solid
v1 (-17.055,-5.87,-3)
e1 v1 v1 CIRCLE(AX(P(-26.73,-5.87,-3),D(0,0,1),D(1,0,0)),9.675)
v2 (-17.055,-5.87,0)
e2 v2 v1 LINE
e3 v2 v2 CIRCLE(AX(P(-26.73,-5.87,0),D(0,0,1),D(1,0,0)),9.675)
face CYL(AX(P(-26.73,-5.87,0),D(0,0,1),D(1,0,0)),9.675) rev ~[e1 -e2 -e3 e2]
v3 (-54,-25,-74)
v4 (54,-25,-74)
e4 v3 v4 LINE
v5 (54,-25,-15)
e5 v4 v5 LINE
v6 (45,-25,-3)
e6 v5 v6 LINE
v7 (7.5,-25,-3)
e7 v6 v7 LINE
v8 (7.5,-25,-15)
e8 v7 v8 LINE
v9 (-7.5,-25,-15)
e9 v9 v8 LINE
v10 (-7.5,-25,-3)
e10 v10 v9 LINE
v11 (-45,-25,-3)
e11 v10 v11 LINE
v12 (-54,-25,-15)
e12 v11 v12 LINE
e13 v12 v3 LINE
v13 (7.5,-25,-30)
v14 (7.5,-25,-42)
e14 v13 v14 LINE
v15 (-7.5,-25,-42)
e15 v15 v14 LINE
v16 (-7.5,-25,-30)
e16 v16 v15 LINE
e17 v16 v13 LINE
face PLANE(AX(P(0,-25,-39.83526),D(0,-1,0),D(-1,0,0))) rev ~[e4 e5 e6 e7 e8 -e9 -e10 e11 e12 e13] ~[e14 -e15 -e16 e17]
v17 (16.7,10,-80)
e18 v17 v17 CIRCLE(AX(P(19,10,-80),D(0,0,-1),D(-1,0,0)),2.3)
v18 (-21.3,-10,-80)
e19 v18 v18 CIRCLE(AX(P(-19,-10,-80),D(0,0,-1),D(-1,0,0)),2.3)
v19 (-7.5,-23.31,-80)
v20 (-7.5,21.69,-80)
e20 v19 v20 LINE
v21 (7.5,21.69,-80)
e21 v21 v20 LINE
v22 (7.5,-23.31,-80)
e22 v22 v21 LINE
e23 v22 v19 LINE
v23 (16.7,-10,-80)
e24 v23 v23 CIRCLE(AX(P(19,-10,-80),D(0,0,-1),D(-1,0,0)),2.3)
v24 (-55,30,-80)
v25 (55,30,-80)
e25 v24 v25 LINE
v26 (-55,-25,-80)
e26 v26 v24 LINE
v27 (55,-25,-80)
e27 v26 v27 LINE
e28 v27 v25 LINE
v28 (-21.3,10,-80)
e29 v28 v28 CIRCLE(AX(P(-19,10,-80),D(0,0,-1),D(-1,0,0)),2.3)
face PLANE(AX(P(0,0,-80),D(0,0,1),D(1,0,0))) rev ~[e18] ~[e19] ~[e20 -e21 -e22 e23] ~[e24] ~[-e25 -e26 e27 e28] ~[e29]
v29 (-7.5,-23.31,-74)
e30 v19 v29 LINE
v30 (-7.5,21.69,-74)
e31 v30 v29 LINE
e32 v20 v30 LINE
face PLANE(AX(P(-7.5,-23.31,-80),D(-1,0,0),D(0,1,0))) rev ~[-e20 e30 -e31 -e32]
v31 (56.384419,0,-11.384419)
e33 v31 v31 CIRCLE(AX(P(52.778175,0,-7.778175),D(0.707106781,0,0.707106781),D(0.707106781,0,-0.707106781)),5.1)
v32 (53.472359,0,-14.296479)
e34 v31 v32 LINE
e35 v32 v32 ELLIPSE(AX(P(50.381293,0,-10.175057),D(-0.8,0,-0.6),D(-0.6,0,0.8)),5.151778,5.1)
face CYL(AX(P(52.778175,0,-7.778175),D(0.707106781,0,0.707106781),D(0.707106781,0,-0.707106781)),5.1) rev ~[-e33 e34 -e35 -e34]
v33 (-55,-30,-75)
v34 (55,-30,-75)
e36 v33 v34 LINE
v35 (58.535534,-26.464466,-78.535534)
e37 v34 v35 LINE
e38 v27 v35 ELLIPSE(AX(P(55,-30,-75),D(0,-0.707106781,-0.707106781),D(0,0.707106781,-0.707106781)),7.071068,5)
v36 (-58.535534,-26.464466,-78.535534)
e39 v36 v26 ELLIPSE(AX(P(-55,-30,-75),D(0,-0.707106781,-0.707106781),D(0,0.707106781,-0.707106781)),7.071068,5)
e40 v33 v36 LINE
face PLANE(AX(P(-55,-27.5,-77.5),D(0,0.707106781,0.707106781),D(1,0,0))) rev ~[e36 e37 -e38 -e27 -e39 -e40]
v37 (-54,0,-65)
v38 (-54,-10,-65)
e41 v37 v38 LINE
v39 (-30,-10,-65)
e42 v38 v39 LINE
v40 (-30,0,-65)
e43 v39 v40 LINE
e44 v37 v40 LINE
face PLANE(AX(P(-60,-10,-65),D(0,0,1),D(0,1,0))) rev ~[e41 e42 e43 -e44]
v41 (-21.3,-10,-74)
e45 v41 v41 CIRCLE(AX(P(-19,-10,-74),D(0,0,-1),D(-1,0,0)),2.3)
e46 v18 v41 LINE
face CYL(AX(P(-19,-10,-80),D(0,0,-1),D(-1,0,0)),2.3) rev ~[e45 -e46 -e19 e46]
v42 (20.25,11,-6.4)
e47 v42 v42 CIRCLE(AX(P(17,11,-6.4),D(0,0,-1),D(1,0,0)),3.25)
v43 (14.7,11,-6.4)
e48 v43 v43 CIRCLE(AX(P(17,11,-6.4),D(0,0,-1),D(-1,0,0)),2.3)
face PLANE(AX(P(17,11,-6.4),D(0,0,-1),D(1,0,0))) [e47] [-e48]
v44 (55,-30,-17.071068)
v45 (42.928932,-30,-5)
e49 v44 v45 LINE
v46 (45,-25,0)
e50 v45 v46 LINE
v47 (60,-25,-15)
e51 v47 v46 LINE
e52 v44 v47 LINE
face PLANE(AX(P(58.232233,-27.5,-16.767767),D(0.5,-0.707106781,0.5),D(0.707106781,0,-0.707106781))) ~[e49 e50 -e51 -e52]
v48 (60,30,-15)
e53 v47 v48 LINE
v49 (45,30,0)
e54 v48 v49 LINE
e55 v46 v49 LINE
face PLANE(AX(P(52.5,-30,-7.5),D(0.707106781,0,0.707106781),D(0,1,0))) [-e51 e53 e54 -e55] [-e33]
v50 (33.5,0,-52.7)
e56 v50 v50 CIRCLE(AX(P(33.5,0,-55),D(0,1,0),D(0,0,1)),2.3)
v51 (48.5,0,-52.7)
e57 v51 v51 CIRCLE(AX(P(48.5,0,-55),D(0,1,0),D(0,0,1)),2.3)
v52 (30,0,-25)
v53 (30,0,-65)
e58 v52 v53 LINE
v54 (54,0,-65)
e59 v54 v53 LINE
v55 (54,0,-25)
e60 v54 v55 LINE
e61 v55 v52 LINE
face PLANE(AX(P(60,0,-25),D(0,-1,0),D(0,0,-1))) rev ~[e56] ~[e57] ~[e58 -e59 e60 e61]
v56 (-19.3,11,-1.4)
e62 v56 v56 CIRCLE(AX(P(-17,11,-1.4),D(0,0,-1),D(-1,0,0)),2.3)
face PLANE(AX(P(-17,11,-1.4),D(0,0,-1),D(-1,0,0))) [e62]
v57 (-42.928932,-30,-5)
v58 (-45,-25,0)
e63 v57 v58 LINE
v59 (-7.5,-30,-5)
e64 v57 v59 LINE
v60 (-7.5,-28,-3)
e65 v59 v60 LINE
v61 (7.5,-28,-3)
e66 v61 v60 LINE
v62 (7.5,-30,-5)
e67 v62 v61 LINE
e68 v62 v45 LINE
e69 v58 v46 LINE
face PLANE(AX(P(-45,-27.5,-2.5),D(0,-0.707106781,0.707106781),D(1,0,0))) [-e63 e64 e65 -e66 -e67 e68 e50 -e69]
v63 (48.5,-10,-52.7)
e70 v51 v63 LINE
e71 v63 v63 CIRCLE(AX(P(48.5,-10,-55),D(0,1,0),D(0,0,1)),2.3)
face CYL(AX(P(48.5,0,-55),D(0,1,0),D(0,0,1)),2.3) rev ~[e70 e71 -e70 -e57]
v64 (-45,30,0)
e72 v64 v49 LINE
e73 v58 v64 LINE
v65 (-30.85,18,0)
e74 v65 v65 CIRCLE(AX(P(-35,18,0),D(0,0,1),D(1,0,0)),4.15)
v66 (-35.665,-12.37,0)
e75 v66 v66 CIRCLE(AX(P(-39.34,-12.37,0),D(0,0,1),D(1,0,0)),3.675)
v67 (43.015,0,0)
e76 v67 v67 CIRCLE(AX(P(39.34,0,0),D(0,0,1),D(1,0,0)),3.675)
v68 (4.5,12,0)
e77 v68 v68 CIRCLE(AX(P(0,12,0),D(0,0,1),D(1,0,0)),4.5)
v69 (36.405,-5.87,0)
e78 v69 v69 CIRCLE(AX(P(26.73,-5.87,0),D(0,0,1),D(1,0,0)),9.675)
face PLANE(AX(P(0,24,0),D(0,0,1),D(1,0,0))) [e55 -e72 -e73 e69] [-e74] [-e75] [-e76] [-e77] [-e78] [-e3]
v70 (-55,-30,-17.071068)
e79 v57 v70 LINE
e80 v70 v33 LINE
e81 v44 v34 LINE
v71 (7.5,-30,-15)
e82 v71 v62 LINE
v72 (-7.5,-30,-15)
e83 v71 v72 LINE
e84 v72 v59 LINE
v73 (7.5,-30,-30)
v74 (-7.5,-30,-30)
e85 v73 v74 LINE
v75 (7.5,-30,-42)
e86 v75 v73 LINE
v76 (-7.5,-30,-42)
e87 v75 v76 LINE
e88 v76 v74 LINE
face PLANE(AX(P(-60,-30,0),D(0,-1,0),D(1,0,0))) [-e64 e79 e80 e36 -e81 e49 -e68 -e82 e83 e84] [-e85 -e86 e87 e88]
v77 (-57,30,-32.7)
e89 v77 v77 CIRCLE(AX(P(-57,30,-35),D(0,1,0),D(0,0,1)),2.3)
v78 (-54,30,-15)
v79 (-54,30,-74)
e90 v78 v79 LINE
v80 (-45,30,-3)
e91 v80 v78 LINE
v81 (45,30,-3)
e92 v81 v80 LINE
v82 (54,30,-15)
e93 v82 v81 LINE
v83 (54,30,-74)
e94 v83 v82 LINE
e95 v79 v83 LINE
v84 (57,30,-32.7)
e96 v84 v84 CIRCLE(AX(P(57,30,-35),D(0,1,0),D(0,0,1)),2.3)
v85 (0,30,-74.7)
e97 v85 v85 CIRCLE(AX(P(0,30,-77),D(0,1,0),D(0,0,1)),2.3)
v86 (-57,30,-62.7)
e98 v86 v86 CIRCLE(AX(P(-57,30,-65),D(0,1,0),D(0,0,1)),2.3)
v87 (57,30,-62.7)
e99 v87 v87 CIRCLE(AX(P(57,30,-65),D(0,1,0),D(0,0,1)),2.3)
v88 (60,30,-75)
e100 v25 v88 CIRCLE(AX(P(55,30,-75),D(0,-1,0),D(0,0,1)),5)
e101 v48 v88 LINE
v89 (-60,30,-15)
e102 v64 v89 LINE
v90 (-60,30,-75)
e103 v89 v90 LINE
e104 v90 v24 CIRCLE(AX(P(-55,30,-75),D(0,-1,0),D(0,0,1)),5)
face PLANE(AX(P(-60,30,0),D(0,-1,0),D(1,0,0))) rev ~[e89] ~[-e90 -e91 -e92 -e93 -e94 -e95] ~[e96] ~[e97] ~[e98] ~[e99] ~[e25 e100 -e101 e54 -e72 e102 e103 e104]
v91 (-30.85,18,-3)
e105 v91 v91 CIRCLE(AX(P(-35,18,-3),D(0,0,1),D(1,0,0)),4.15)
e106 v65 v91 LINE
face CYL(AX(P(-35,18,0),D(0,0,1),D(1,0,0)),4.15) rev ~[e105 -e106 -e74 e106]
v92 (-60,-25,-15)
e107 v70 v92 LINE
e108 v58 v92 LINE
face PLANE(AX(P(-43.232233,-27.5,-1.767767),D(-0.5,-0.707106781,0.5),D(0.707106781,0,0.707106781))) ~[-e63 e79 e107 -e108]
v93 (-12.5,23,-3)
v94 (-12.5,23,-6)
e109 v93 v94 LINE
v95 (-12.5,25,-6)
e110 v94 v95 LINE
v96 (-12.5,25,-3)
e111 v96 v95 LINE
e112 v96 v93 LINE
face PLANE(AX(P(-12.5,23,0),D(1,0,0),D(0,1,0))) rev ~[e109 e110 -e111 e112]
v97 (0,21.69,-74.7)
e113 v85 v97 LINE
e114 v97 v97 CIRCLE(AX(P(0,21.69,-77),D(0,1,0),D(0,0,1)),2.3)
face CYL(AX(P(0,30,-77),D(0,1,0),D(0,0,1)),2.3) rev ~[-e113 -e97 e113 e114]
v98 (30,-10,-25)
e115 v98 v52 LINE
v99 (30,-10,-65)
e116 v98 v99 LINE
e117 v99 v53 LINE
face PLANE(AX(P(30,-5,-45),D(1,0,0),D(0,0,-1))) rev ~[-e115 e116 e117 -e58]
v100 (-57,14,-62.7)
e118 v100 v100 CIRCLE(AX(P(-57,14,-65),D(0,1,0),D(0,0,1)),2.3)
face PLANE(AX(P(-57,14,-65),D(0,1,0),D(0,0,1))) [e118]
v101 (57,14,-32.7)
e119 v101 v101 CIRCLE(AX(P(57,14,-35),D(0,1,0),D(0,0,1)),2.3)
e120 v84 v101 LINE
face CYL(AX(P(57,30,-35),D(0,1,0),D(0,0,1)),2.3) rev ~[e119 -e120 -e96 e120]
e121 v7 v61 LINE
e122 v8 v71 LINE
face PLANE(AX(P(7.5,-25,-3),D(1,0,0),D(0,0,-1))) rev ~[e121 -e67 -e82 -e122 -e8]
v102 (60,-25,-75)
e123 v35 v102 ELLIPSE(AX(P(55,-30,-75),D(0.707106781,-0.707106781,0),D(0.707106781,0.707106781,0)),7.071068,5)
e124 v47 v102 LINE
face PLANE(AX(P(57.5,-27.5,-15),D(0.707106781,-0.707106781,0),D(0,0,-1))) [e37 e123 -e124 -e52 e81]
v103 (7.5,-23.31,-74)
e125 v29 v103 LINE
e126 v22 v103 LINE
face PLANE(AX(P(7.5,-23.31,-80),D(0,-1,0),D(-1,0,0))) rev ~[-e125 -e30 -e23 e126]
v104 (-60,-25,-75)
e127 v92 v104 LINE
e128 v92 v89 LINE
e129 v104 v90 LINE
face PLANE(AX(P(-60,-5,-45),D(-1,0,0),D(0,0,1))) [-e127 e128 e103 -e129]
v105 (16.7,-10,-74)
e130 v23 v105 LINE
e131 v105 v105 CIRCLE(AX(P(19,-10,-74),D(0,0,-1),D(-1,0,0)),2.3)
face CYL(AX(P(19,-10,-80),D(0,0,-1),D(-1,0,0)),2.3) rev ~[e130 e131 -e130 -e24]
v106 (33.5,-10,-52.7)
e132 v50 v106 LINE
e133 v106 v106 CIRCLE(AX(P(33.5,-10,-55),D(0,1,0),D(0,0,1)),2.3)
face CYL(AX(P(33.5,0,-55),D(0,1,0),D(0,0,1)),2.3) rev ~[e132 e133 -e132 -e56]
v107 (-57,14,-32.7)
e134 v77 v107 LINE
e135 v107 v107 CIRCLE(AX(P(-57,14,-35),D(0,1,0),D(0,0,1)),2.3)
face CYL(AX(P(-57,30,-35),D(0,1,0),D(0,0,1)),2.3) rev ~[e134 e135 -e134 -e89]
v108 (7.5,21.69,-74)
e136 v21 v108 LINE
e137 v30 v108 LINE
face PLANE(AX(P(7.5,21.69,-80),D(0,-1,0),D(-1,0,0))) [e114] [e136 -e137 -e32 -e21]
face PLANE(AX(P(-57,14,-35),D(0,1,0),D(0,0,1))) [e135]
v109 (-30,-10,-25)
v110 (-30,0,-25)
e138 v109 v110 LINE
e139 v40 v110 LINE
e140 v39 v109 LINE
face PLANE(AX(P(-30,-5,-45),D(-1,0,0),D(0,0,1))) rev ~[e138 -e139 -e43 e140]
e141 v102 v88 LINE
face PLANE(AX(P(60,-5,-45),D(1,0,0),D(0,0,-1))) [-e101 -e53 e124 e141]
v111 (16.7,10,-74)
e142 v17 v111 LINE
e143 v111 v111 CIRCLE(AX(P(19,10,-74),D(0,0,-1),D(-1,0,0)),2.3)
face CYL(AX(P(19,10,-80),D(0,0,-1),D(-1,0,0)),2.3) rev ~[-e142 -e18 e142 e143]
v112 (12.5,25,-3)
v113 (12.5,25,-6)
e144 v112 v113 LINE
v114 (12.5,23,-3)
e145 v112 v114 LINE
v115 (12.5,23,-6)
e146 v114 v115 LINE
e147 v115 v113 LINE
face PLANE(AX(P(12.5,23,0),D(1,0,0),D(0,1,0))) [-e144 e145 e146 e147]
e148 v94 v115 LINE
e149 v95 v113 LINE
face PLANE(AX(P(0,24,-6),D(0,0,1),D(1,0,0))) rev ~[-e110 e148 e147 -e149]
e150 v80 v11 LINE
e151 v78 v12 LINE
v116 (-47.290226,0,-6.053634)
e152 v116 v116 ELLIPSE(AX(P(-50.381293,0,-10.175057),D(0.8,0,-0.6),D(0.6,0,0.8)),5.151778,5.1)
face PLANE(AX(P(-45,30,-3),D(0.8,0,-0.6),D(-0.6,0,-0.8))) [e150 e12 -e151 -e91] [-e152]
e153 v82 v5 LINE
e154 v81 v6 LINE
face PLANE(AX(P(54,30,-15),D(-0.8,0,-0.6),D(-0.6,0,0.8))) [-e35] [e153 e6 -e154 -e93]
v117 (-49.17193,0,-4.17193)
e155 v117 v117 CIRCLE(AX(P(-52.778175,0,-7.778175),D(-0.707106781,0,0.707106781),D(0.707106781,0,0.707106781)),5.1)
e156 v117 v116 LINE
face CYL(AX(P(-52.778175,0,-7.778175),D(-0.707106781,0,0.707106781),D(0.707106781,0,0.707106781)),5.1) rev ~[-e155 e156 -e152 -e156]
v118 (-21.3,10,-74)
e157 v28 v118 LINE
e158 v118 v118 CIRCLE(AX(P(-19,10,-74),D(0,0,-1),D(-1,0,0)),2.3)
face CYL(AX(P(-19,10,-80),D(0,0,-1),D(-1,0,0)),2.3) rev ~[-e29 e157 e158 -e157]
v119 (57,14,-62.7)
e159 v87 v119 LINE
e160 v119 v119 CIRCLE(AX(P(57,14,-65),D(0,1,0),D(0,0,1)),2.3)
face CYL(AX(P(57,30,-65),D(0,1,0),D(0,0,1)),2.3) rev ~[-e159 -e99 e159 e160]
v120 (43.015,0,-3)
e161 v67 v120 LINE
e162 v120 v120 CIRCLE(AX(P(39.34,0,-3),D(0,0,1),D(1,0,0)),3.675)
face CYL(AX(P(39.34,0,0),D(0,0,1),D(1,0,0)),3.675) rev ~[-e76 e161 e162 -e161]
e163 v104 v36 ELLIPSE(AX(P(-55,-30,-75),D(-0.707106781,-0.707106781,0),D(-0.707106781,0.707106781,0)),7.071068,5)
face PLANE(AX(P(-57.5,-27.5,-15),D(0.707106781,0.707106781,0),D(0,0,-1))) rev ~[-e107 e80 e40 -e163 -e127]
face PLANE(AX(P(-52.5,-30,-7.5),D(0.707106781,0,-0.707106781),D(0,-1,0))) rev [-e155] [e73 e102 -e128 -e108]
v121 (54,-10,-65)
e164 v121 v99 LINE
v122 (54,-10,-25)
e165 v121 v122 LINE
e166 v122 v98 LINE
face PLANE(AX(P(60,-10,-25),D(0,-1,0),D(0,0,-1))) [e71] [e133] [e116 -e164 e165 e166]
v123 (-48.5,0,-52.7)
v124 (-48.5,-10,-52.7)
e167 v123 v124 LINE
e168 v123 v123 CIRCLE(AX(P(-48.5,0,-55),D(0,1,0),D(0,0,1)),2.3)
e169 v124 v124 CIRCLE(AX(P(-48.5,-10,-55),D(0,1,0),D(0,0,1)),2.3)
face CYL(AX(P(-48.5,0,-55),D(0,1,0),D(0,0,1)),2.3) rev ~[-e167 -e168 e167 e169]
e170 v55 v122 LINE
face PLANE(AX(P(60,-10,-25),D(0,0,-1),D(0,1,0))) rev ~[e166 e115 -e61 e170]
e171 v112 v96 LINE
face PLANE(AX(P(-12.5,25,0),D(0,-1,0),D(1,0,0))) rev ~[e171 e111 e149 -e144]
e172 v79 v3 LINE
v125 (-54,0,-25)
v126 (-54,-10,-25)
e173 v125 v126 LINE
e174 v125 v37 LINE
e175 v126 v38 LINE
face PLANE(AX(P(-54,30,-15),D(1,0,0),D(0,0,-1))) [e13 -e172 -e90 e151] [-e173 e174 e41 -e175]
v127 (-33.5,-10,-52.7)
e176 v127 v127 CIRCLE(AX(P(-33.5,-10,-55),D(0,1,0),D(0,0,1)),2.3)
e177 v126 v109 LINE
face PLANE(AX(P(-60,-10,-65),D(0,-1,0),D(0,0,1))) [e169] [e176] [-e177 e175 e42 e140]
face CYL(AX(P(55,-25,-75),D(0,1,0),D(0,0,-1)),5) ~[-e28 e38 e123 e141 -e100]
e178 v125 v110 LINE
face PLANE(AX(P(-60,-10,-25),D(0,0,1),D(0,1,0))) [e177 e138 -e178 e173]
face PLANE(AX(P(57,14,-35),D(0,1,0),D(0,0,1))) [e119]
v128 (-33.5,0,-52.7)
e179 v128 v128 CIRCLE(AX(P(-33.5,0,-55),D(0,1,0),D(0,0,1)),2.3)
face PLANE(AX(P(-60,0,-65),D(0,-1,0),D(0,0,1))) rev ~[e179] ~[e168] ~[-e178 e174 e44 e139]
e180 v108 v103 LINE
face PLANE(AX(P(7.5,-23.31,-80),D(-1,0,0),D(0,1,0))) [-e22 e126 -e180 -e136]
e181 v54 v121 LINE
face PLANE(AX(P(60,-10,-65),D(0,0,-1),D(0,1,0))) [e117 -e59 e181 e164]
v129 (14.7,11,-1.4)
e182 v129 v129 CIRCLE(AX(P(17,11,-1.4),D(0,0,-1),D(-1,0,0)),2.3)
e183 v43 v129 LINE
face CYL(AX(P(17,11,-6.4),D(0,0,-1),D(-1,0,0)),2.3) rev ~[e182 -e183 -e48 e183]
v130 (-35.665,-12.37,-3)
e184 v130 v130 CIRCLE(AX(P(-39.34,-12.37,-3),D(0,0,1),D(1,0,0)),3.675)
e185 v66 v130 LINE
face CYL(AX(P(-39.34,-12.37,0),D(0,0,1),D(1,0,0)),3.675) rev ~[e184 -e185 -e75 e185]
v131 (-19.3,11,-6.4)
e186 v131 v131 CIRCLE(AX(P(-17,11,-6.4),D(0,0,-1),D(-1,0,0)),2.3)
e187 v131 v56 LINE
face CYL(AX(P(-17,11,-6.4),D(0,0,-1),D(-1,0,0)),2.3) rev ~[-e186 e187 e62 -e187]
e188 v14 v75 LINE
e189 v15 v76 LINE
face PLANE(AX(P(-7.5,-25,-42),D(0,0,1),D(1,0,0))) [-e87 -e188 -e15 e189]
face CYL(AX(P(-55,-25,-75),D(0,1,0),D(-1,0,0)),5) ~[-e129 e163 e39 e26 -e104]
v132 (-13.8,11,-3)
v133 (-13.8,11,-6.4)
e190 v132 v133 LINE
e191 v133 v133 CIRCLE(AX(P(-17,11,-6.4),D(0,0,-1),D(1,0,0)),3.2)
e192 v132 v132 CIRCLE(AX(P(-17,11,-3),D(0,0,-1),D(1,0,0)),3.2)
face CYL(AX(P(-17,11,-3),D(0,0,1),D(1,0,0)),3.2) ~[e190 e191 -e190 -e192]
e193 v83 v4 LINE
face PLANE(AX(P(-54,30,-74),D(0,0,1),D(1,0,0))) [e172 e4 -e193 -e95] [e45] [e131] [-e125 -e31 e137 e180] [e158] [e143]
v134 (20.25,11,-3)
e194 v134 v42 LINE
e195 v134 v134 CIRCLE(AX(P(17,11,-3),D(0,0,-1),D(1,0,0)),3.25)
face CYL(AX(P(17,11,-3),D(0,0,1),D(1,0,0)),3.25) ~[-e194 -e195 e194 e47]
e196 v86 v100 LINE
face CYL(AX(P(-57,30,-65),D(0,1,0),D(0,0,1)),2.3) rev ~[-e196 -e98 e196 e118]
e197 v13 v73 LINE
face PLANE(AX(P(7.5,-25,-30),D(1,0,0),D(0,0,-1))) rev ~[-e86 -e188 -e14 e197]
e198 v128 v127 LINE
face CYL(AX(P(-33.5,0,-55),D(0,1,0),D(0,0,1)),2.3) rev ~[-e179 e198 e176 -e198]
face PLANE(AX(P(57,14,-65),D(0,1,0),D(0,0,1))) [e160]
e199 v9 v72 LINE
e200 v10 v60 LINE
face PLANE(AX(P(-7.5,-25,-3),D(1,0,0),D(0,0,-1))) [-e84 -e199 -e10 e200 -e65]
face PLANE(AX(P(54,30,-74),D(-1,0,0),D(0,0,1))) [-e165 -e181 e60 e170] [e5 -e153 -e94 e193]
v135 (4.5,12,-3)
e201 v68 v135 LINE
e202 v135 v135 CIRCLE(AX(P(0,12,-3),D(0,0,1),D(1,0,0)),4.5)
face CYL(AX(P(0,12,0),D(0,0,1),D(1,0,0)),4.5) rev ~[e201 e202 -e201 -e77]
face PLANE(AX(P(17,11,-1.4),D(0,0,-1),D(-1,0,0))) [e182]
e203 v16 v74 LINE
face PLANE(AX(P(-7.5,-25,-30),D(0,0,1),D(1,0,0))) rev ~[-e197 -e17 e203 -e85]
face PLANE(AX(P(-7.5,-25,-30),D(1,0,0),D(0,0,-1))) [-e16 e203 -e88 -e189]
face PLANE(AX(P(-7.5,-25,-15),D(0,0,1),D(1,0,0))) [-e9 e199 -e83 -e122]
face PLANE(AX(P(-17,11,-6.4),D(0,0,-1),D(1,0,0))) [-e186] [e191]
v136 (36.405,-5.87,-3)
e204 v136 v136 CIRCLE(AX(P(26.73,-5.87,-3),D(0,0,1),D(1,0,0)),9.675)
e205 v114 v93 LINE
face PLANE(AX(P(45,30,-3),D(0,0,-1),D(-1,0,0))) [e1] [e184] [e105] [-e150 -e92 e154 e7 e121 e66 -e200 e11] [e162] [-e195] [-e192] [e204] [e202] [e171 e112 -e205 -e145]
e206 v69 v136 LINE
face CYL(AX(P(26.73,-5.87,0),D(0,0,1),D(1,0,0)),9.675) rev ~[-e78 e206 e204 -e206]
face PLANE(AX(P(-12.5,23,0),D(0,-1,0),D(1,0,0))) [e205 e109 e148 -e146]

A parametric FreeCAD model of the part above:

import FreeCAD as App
import Part
import Sketcher
Q = App.Units.Quantity


def edges_at(feature, points):
    """Names of the edges that pass closest to the given points."""
    edges = feature.Shape.Edges
    near = lambda p: min(range(len(edges)), key=lambda i: edges[i].distToShape(Part.Vertex(*p))[0])
    return sorted({f"Edge{near(p) + 1}" for p in points})

doc = App.newDocument("Part")
body = doc.addObject("PartDesign::Body", "Body")

# Sketch on XY plane
sketch1 = body.newObject("Sketcher::SketchObject", "Sketch")
sketch1.AttachmentSupport = (doc.getObject("XY_Plane"), [""])
sketch1.MapMode = "FlatFace"
sketch1.addGeometry(Part.LineSegment(App.Vector(-60, 30, 0), App.Vector(-60, -30, 0)), False)
sketch1.addGeometry(Part.LineSegment(App.Vector(-60, -30, 0), App.Vector(60, -30, 0)), False)
sketch1.addGeometry(Part.LineSegment(App.Vector(60, -30, 0), App.Vector(60, 30, 0)), False)
sketch1.addGeometry(Part.LineSegment(App.Vector(60, 30, 0), App.Vector(-60, 30, 0)), False)
sketch1.addConstraint(Sketcher.Constraint("Coincident", 0, 2, 1, 1))
sketch1.addConstraint(Sketcher.Constraint("Coincident", 1, 2, 2, 1))
sketch1.addConstraint(Sketcher.Constraint("Coincident", 2, 2, 3, 1))
sketch1.addConstraint(Sketcher.Constraint("Coincident", 3, 2, 0, 1))
sketch1.addConstraint(Sketcher.Constraint("Vertical", 0))
sketch1.addConstraint(Sketcher.Constraint("Horizontal", 1))
sketch1.addConstraint(Sketcher.Constraint("Vertical", 2))
sketch1.addConstraint(Sketcher.Constraint("Horizontal", 3))
sketch1.addConstraint(Sketcher.Constraint("Symmetric", 0, 2, 2, 2, -1, 1))
sketch1.addConstraint(Sketcher.Constraint("DistanceX", 1, 1, 1, 2, Q("120 mm")))
sketch1.addConstraint(Sketcher.Constraint("DistanceY", 0, 2, 0, 1, Q("60 mm")))
pad1 = body.newObject("PartDesign::Pad", "Pad")
pad1.Profile = sketch1
pad1.Length = 80
pad1.Reversed = True
doc.recompute()

chamfer = body.newObject("PartDesign::Chamfer", "Chamfer")
chamfer.Base = (pad1, edges_at(pad1, [(60, 0, 0)]))
chamfer.Size = 15
doc.recompute()

chamfer2 = body.newObject("PartDesign::Chamfer", "Chamfer001")
chamfer2.Base = (chamfer, edges_at(chamfer, [(-60, 0, 0)]))
chamfer2.Size = 15

# Sketch on XZ plane
sketch2 = body.newObject("Sketcher::SketchObject", "Sketch001")
sketch2.AttachmentSupport = (doc.getObject("XZ_Plane"), [""])
sketch2.MapMode = "FlatFace"
sketch2.AttachmentOffset = App.Placement(App.Vector(0, 0, -30), App.Rotation())
sketch2.addGeometry(Part.LineSegment(App.Vector(-54, -74, 0), App.Vector(-54, -15, 0)), False)
sketch2.addGeometry(Part.LineSegment(App.Vector(-54, -15, 0), App.Vector(-45, -3, 0)), False)
sketch2.addGeometry(Part.LineSegment(App.Vector(-45, -3, 0), App.Vector(45, -3, 0)), False)
sketch2.addGeometry(Part.LineSegment(App.Vector(45, -3, 0), App.Vector(54, -15, 0)), False)
sketch2.addGeometry(Part.LineSegment(App.Vector(54, -15, 0), App.Vector(54, -74, 0)), False)
sketch2.addGeometry(Part.LineSegment(App.Vector(54, -74, 0), App.Vector(-54, -74, 0)), False)
sketch2.addConstraint(Sketcher.Constraint("Coincident", 0, 2, 1, 1))
sketch2.addConstraint(Sketcher.Constraint("Coincident", 1, 2, 2, 1))
sketch2.addConstraint(Sketcher.Constraint("Coincident", 2, 2, 3, 1))
sketch2.addConstraint(Sketcher.Constraint("Coincident", 3, 2, 4, 1))
sketch2.addConstraint(Sketcher.Constraint("Coincident", 4, 2, 5, 1))
sketch2.addConstraint(Sketcher.Constraint("Coincident", 5, 2, 0, 1))
sketch2.addConstraint(Sketcher.Constraint("Vertical", 0))
sketch2.addConstraint(Sketcher.Constraint("Horizontal", 2))
sketch2.addConstraint(Sketcher.Constraint("Vertical", 4))
sketch2.addConstraint(Sketcher.Constraint("Horizontal", 5))
sketch2.addConstraint(Sketcher.Constraint("Symmetric", 0, 2, 3, 2, -2))
sketch2.addConstraint(Sketcher.Constraint("Equal", 1, 3))
sketch2.addConstraint(Sketcher.Constraint("DistanceX", 2, 1, 2, 2, Q("90 mm")))
sketch2.addConstraint(Sketcher.Constraint("DistanceX", 5, 2, 5, 1, Q("108 mm")))
sketch2.addConstraint(Sketcher.Constraint("DistanceY", 0, 1, 0, 2, Q("59 mm")))
sketch2.addConstraint(Sketcher.Constraint("Distance", 1, Q("15 mm")))
sketch2.addConstraint(Sketcher.Constraint("DistanceY", 0, 2, -1, 1, Q("15 mm")))
pocket1 = body.newObject("PartDesign::Pocket", "Pocket")
pocket1.Profile = sketch2
pocket1.Length = 55
pocket1.Reversed = True

# Sketch on XY plane
sketch3 = body.newObject("Sketcher::SketchObject", "Sketch002")
sketch3.AttachmentSupport = (doc.getObject("XY_Plane"), [""])
sketch3.MapMode = "FlatFace"
sketch3.addGeometry(Part.Circle(App.Vector(0, 12, 0), App.Vector(0, 0, 1), 4.5), False)
sketch3.addGeometry(Part.Circle(App.Vector(-35, 18, 0), App.Vector(0, 0, 1), 4.2), False)
sketch3.addGeometry(Part.Circle(App.Vector(26.7, -5.9, 0), App.Vector(0, 0, 1), 9.7), False)
sketch3.addGeometry(Part.Circle(App.Vector(-26.7, -5.9, 0), App.Vector(0, 0, 1), 9.7), False)
sketch3.addGeometry(Part.Circle(App.Vector(39.3, 0, 0), App.Vector(0, 0, 1), 3.7), False)
sketch3.addGeometry(Part.Circle(App.Vector(-39.3, -12.4, 0), App.Vector(0, 0, 1), 3.7), False)
sketch3.addConstraint(Sketcher.Constraint("Equal", 2, 3))
sketch3.addConstraint(Sketcher.Constraint("Equal", 4, 5))
sketch3.addConstraint(Sketcher.Constraint("Symmetric", 2, 3, 3, 3, -2))
sketch3.addConstraint(Sketcher.Constraint("PointOnObject", 0, 3, -2))
sketch3.addConstraint(Sketcher.Constraint("PointOnObject", 4, 3, -1))
sketch3.addConstraint(Sketcher.Constraint("Diameter", 0, Q("9 mm")))
sketch3.addConstraint(Sketcher.Constraint("Diameter", 1, Q("8.3 mm")))
sketch3.addConstraint(Sketcher.Constraint("Diameter", 2, Q("19.35 mm")))
sketch3.addConstraint(Sketcher.Constraint("Diameter", 4, Q("7.35 mm")))
sketch3.addConstraint(Sketcher.Constraint("DistanceY", -1, 1, 0, 3, Q("12 mm")))
sketch3.addConstraint(Sketcher.Constraint("DistanceX", 1, 3, -1, 1, Q("35 mm")))
sketch3.addConstraint(Sketcher.Constraint("DistanceY", -1, 1, 1, 3, Q("18 mm")))
sketch3.addConstraint(Sketcher.Constraint("DistanceY", 5, 3, 3, 3, Q("6.5 mm")))
sketch3.addConstraint(Sketcher.Constraint("DistanceX", -1, 1, 2, 3, Q("26.73 mm")))
sketch3.addConstraint(Sketcher.Constraint("DistanceY", 2, 3, -1, 1, Q("5.87 mm")))
sketch3.addConstraint(Sketcher.Constraint("DistanceX", -1, 1, 4, 3, Q("39.34 mm")))
sketch3.addConstraint(Sketcher.Constraint("DistanceX", 5, 3, -1, 1, Q("39.34 mm")))
pocket2 = body.newObject("PartDesign::Pocket", "Pocket001")
pocket2.Profile = sketch3
pocket2.Length = 10

# Sketch on an angled plane
sketch4 = body.newObject("Sketcher::SketchObject", "Sketch003")
sketch4.Placement = App.Placement(App.Vector(22.5, 0, 22.5), App.Rotation(App.Vector(0.707106781, 0, -0.707106781), App.Vector(0, 0.999999999, 0), App.Vector(0.707106781, 0, 0.707106781), "ZXY"))
sketch4.addGeometry(Part.Circle(App.Vector(43, 0, 0), App.Vector(0, 0, 1), 5), False)
sketch4.addConstraint(Sketcher.Constraint("PointOnObject", 0, 3, -1))
sketch4.addConstraint(Sketcher.Constraint("Diameter", 0, Q("10.2 mm")))
sketch4.addConstraint(Sketcher.Constraint("DistanceX", -1, 1, 0, 3, Q("42.819805 mm")))
pocket3 = body.newObject("PartDesign::Pocket", "Pocket002")
pocket3.Profile = sketch4
pocket3.Length = 10

# Sketch on an angled plane
sketch5 = body.newObject("Sketcher::SketchObject", "Sketch004")
sketch5.Placement = App.Placement(App.Vector(-22.5, 0, 22.5), App.Rotation(App.Vector(0.707106781, 0, 0.707106781), App.Vector(0, 0.999999999, 0), App.Vector(-0.707106781, 0, 0.707106781), "ZXY"))
sketch5.addGeometry(Part.Circle(App.Vector(-43, 0, 0), App.Vector(0, 0, 1), 5), False)
sketch5.addConstraint(Sketcher.Constraint("PointOnObject", 0, 3, -1))
sketch5.addConstraint(Sketcher.Constraint("Diameter", 0, Q("10.2 mm")))
sketch5.addConstraint(Sketcher.Constraint("DistanceX", 0, 3, -1, 1, Q("42.819805 mm")))
pocket4 = body.newObject("PartDesign::Pocket", "Pocket003")
pocket4.Profile = sketch5
pocket4.Length = 10
doc.recompute()

chamfer3 = body.newObject("PartDesign::Chamfer", "Chamfer002")
chamfer3.Base = (pocket4, edges_at(pocket4, [
    (52.5, -30, -7.5),
    (0, -30, 0),
    (-52.5, -30, -7.5),
    (60, -30, -47.5),
    (-60, -30, -47.5),
]))
chamfer3.Size = 5

# Sketch on XY plane
sketch6 = body.newObject("Sketcher::SketchObject", "Sketch005")
sketch6.AttachmentSupport = (doc.getObject("XY_Plane"), [""])
sketch6.MapMode = "FlatFace"
sketch6.AttachmentOffset = App.Placement(App.Vector(0, 0, -80), App.Rotation())
sketch6.addGeometry(Part.LineSegment(App.Vector(8, 22, 0), App.Vector(8, -23, 0)), False)
sketch6.addGeometry(Part.LineSegment(App.Vector(8, -23, 0), App.Vector(-8, -23, 0)), False)
sketch6.addGeometry(Part.LineSegment(App.Vector(-8, -23, 0), App.Vector(-8, 22, 0)), False)
sketch6.addGeometry(Part.LineSegment(App.Vector(-8, 22, 0), App.Vector(8, 22, 0)), False)
sketch6.addConstraint(Sketcher.Constraint("Coincident", 0, 2, 1, 1))
sketch6.addConstraint(Sketcher.Constraint("Coincident", 1, 2, 2, 1))
sketch6.addConstraint(Sketcher.Constraint("Coincident", 2, 2, 3, 1))
sketch6.addConstraint(Sketcher.Constraint("Coincident", 3, 2, 0, 1))
sketch6.addConstraint(Sketcher.Constraint("Vertical", 0))
sketch6.addConstraint(Sketcher.Constraint("Horizontal", 1))
sketch6.addConstraint(Sketcher.Constraint("Vertical", 2))
sketch6.addConstraint(Sketcher.Constraint("Horizontal", 3))
sketch6.addConstraint(Sketcher.Constraint("DistanceX", 1, 2, 1, 1, Q("15 mm")))
sketch6.addConstraint(Sketcher.Constraint("DistanceY", 0, 2, 0, 1, Q("45 mm")))
sketch6.addConstraint(Sketcher.Constraint("DistanceX", -1, 1, 0, 2, Q("7.5 mm")))
sketch6.addConstraint(Sketcher.Constraint("DistanceY", 0, 2, -1, 1, Q("23.31 mm")))
pocket5 = body.newObject("PartDesign::Pocket", "Pocket004")
pocket5.Profile = sketch6
pocket5.Length = 15
pocket5.Reversed = True
doc.recompute()

chamfer4 = body.newObject("PartDesign::Chamfer", "Chamfer003")
chamfer4.Base = (pocket5, edges_at(pocket5, [(0, -30, -80)]))
chamfer4.Size = 5

# Sketch on XY plane
sketch7 = body.newObject("Sketcher::SketchObject", "Sketch006")
sketch7.AttachmentSupport = (doc.getObject("XY_Plane"), [""])
sketch7.MapMode = "FlatFace"
sketch7.addGeometry(Part.LineSegment(App.Vector(-12.5, 25, 0), App.Vector(-12.5, 23, 0)), False)
sketch7.addGeometry(Part.LineSegment(App.Vector(-12.5, 23, 0), App.Vector(12.5, 23, 0)), False)
sketch7.addGeometry(Part.LineSegment(App.Vector(12.5, 23, 0), App.Vector(12.5, 25, 0)), False)
sketch7.addGeometry(Part.LineSegment(App.Vector(12.5, 25, 0), App.Vector(-12.5, 25, 0)), False)
sketch7.addConstraint(Sketcher.Constraint("Coincident", 0, 2, 1, 1))
sketch7.addConstraint(Sketcher.Constraint("Coincident", 1, 2, 2, 1))
sketch7.addConstraint(Sketcher.Constraint("Coincident", 2, 2, 3, 1))
sketch7.addConstraint(Sketcher.Constraint("Coincident", 3, 2, 0, 1))
sketch7.addConstraint(Sketcher.Constraint("Vertical", 0))
sketch7.addConstraint(Sketcher.Constraint("Horizontal", 1))
sketch7.addConstraint(Sketcher.Constraint("Vertical", 2))
sketch7.addConstraint(Sketcher.Constraint("Horizontal", 3))
sketch7.addConstraint(Sketcher.Constraint("DistanceX", 1, 1, 1, 2, Q("25 mm")))
sketch7.addConstraint(Sketcher.Constraint("DistanceY", 0, 2, 0, 1, Q("2 mm")))
sketch7.addConstraint(Sketcher.Constraint("DistanceY", -1, 1, 0, 2, Q("23 mm")))
sketch7.addConstraint(Sketcher.Constraint("DistanceX", 0, 2, -1, 1, Q("12.5 mm")))
pad2 = body.newObject("PartDesign::Pad", "Pad001")
pad2.Profile = sketch7
pad2.Length = 6
pad2.Reversed = True

# Sketch on YZ plane
sketch8 = body.newObject("Sketcher::SketchObject", "Sketch007")
sketch8.AttachmentSupport = (doc.getObject("YZ_Plane"), [""])
sketch8.MapMode = "FlatFace"
sketch8.AttachmentOffset = App.Placement(App.Vector(0, 0, 60), App.Rotation())
sketch8.addGeometry(Part.LineSegment(App.Vector(0, -25, 0), App.Vector(-10, -25, 0)), False)
sketch8.addGeometry(Part.LineSegment(App.Vector(-10, -25, 0), App.Vector(-10, -65, 0)), False)
sketch8.addGeometry(Part.LineSegment(App.Vector(-10, -65, 0), App.Vector(0, -65, 0)), False)
sketch8.addGeometry(Part.LineSegment(App.Vector(0, -65, 0), App.Vector(0, -25, 0)), False)
sketch8.addConstraint(Sketcher.Constraint("Coincident", 0, 2, 1, 1))
sketch8.addConstraint(Sketcher.Constraint("Coincident", 1, 2, 2, 1))
sketch8.addConstraint(Sketcher.Constraint("Coincident", 2, 2, 3, 1))
sketch8.addConstraint(Sketcher.Constraint("Coincident", 3, 2, 0, 1))
sketch8.addConstraint(Sketcher.Constraint("Horizontal", 0))
sketch8.addConstraint(Sketcher.Constraint("Vertical", 1))
sketch8.addConstraint(Sketcher.Constraint("Horizontal", 2))
sketch8.addConstraint(Sketcher.Constraint("Vertical", 3))
sketch8.addConstraint(Sketcher.Constraint("PointOnObject", 2, 2, -2))
sketch8.addConstraint(Sketcher.Constraint("DistanceX", 0, 2, 0, 1, Q("10 mm")))
sketch8.addConstraint(Sketcher.Constraint("DistanceY", 1, 2, 1, 1, Q("40 mm")))
sketch8.addConstraint(Sketcher.Constraint("DistanceY", 0, 2, -1, 1, Q("25 mm")))
pad3 = body.newObject("PartDesign::Pad", "Pad002")
pad3.Profile = sketch8
pad3.Length = 30
pad3.Reversed = True

# Sketch on YZ plane
sketch9 = body.newObject("Sketcher::SketchObject", "Sketch008")
sketch9.AttachmentSupport = (doc.getObject("YZ_Plane"), [""])
sketch9.MapMode = "FlatFace"
sketch9.AttachmentOffset = App.Placement(App.Vector(0, 0, -60), App.Rotation())
sketch9.addGeometry(Part.LineSegment(App.Vector(0, -65, 0), App.Vector(-10, -65, 0)), False)
sketch9.addGeometry(Part.LineSegment(App.Vector(-10, -65, 0), App.Vector(-10, -25, 0)), False)
sketch9.addGeometry(Part.LineSegment(App.Vector(-10, -25, 0), App.Vector(0, -25, 0)), False)
sketch9.addGeometry(Part.LineSegment(App.Vector(0, -25, 0), App.Vector(0, -65, 0)), False)
sketch9.addConstraint(Sketcher.Constraint("Coincident", 0, 2, 1, 1))
sketch9.addConstraint(Sketcher.Constraint("Coincident", 1, 2, 2, 1))
sketch9.addConstraint(Sketcher.Constraint("Coincident", 2, 2, 3, 1))
sketch9.addConstraint(Sketcher.Constraint("Coincident", 3, 2, 0, 1))
sketch9.addConstraint(Sketcher.Constraint("Horizontal", 0))
sketch9.addConstraint(Sketcher.Constraint("Vertical", 1))
sketch9.addConstraint(Sketcher.Constraint("Horizontal", 2))
sketch9.addConstraint(Sketcher.Constraint("Vertical", 3))
sketch9.addConstraint(Sketcher.Constraint("PointOnObject", 2, 2, -2))
sketch9.addConstraint(Sketcher.Constraint("DistanceX", 0, 2, 0, 1, Q("10 mm")))
sketch9.addConstraint(Sketcher.Constraint("DistanceY", 1, 1, 1, 2, Q("40 mm")))
sketch9.addConstraint(Sketcher.Constraint("DistanceY", 0, 2, -1, 1, Q("65 mm")))
pad4 = body.newObject("PartDesign::Pad", "Pad003")
pad4.Profile = sketch9
pad4.Length = 30

# Sketch on XZ plane
sketch10 = body.newObject("Sketcher::SketchObject", "Sketch009")
sketch10.AttachmentSupport = (doc.getObject("XZ_Plane"), [""])
sketch10.MapMode = "FlatFace"
sketch10.addGeometry(Part.Circle(App.Vector(33.5, -55, 0), App.Vector(0, 0, 1), 2.3), False)
sketch10.addGeometry(Part.Circle(App.Vector(48.5, -55, 0), App.Vector(0, 0, 1), 2.3), False)
sketch10.addGeometry(Part.Circle(App.Vector(-33.5, -55, 0), App.Vector(0, 0, 1), 2.3), False)
sketch10.addGeometry(Part.Circle(App.Vector(-48.5, -55, 0), App.Vector(0, 0, 1), 2.3), False)
sketch10.addConstraint(Sketcher.Constraint("Equal", 0, 1))
sketch10.addConstraint(Sketcher.Constraint("Equal", 1, 2))
sketch10.addConstraint(Sketcher.Constraint("Equal", 2, 3))
sketch10.addConstraint(Sketcher.Constraint("Symmetric", 0, 3, 2, 3, -2))
sketch10.addConstraint(Sketcher.Constraint("Symmetric", 1, 3, 3, 3, -2))
sketch10.addConstraint(Sketcher.Constraint("Horizontal", 0, 3, 1, 3))
sketch10.addConstraint(Sketcher.Constraint("Diameter", 0, Q("4.6 mm")))
sketch10.addConstraint(Sketcher.Constraint("DistanceY", 0, 3, -1, 1, Q("55 mm")))
sketch10.addConstraint(Sketcher.Constraint("DistanceX", 0, 3, 1, 3, Q("15 mm")))
sketch10.addConstraint(Sketcher.Constraint("DistanceX", 2, 3, 0, 3, Q("67 mm")))
pocket6 = body.newObject("PartDesign::Pocket", "Pocket005")
pocket6.Profile = sketch10
pocket6.Length = 15
pocket6.Reversed = True

# Sketch on XZ plane
sketch11 = body.newObject("Sketcher::SketchObject", "Sketch010")
sketch11.AttachmentSupport = (doc.getObject("XZ_Plane"), [""])
sketch11.MapMode = "FlatFace"
sketch11.AttachmentOffset = App.Placement(App.Vector(0, 0, -30), App.Rotation())
sketch11.addGeometry(Part.Circle(App.Vector(-57, -65, 0), App.Vector(0, 0, 1), 2.3), False)
sketch11.addGeometry(Part.Circle(App.Vector(-57, -35, 0), App.Vector(0, 0, 1), 2.3), False)
sketch11.addGeometry(Part.Circle(App.Vector(57, -65, 0), App.Vector(0, 0, 1), 2.3), False)
sketch11.addGeometry(Part.Circle(App.Vector(57, -35, 0), App.Vector(0, 0, 1), 2.3), False)
sketch11.addGeometry(Part.Circle(App.Vector(0, -77, 0), App.Vector(0, 0, 1), 2.3), False)
sketch11.addConstraint(Sketcher.Constraint("Equal", 0, 1))
sketch11.addConstraint(Sketcher.Constraint("Equal", 1, 2))
sketch11.addConstraint(Sketcher.Constraint("Equal", 2, 3))
sketch11.addConstraint(Sketcher.Constraint("Equal", 3, 4))
sketch11.addConstraint(Sketcher.Constraint("Symmetric", 0, 3, 2, 3, -2))
sketch11.addConstraint(Sketcher.Constraint("Symmetric", 1, 3, 3, 3, -2))
sketch11.addConstraint(Sketcher.Constraint("PointOnObject", 4, 3, -2))
sketch11.addConstraint(Sketcher.Constraint("Vertical", 0, 3, 1, 3))
sketch11.addConstraint(Sketcher.Constraint("Diameter", 0, Q("4.6 mm")))
sketch11.addConstraint(Sketcher.Constraint("DistanceX", 0, 3, -1, 1, Q("57 mm")))
sketch11.addConstraint(Sketcher.Constraint("DistanceY", 0, 3, -1, 1, Q("65 mm")))
sketch11.addConstraint(Sketcher.Constraint("DistanceY", 1, 3, -1, 1, Q("35 mm")))
sketch11.addConstraint(Sketcher.Constraint("DistanceY", 4, 3, -1, 1, Q("77 mm")))
pocket7 = body.newObject("PartDesign::Pocket", "Pocket006")
pocket7.Profile = sketch11
pocket7.Length = 16
pocket7.Reversed = True

# Sketch on XY plane
sketch12 = body.newObject("Sketcher::SketchObject", "Sketch011")
sketch12.AttachmentSupport = (doc.getObject("XY_Plane"), [""])
sketch12.MapMode = "FlatFace"
sketch12.AttachmentOffset = App.Placement(App.Vector(0, 0, -80), App.Rotation())
sketch12.addGeometry(Part.Circle(App.Vector(-19, 10, 0), App.Vector(0, 0, 1), 2.3), False)
sketch12.addGeometry(Part.Circle(App.Vector(-19, -10, 0), App.Vector(0, 0, 1), 2.3), False)
sketch12.addGeometry(Part.Circle(App.Vector(19, -10, 0), App.Vector(0, 0, 1), 2.3), False)
sketch12.addGeometry(Part.Circle(App.Vector(19, 10, 0), App.Vector(0, 0, 1), 2.3), False)
sketch12.addConstraint(Sketcher.Constraint("Equal", 0, 1))
sketch12.addConstraint(Sketcher.Constraint("Equal", 1, 2))
sketch12.addConstraint(Sketcher.Constraint("Equal", 2, 3))
sketch12.addConstraint(Sketcher.Constraint("Symmetric", 0, 3, 2, 3, -1, 1))
sketch12.addConstraint(Sketcher.Constraint("Symmetric", 1, 3, 3, 3, -1, 1))
sketch12.addConstraint(Sketcher.Constraint("Symmetric", 1, 3, 2, 3, -2))
sketch12.addConstraint(Sketcher.Constraint("Diameter", 0, Q("4.6 mm")))
sketch12.addConstraint(Sketcher.Constraint("DistanceX", 0, 3, -1, 1, Q("19 mm")))
sketch12.addConstraint(Sketcher.Constraint("DistanceY", -1, 1, 0, 3, Q("10 mm")))
pocket8 = body.newObject("PartDesign::Pocket", "Pocket007")
pocket8.Profile = sketch12
pocket8.Length = 10
pocket8.Reversed = True

# Sketch on XY plane
sketch13 = body.newObject("Sketcher::SketchObject", "Sketch012")
sketch13.AttachmentSupport = (doc.getObject("XY_Plane"), [""])
sketch13.MapMode = "FlatFace"
sketch13.AttachmentOffset = App.Placement(App.Vector(0, 0, -3), App.Rotation())
sketch13.addGeometry(Part.Circle(App.Vector(-17, 11, 0), App.Vector(0, 0, 1), 3.2), False)
sketch13.addGeometry(Part.Circle(App.Vector(17, 11, 0), App.Vector(0, 0, 1), 3.2), False)
sketch13.addConstraint(Sketcher.Constraint("Symmetric", 0, 3, 1, 3, -2))
sketch13.addConstraint(Sketcher.Constraint("Diameter", 0, Q("6.4 mm")))
sketch13.addConstraint(Sketcher.Constraint("Diameter", 1, Q("6.5 mm")))
sketch13.addConstraint(Sketcher.Constraint("DistanceX", 0, 3, -1, 1, Q("17 mm")))
sketch13.addConstraint(Sketcher.Constraint("DistanceY", -1, 1, 0, 3, Q("11 mm")))
pad5 = body.newObject("PartDesign::Pad", "Pad004")
pad5.Profile = sketch13
pad5.Length = 3.4
pad5.Reversed = True

# Sketch on XY plane
sketch14 = body.newObject("Sketcher::SketchObject", "Sketch013")
sketch14.AttachmentSupport = (doc.getObject("XY_Plane"), [""])
sketch14.MapMode = "FlatFace"
sketch14.AttachmentOffset = App.Placement(App.Vector(0, 0, -6.4), App.Rotation())
sketch14.addGeometry(Part.Circle(App.Vector(-17, 11, 0), App.Vector(0, 0, 1), 2.3), False)
sketch14.addGeometry(Part.Circle(App.Vector(17, 11, 0), App.Vector(0, 0, 1), 2.3), False)
sketch14.addConstraint(Sketcher.Constraint("Equal", 0, 1))
sketch14.addConstraint(Sketcher.Constraint("Symmetric", 0, 3, 1, 3, -2))
sketch14.addConstraint(Sketcher.Constraint("Diameter", 0, Q("4.6 mm")))
sketch14.addConstraint(Sketcher.Constraint("DistanceX", 0, 3, -1, 1, Q("17 mm")))
sketch14.addConstraint(Sketcher.Constraint("DistanceY", -1, 1, 0, 3, Q("11 mm")))
pocket9 = body.newObject("PartDesign::Pocket", "Pocket008")
pocket9.Profile = sketch14
pocket9.Length = 5
pocket9.Reversed = True

# Sketch on XZ plane
sketch15 = body.newObject("Sketcher::SketchObject", "Sketch014")
sketch15.AttachmentSupport = (doc.getObject("XZ_Plane"), [""])
sketch15.MapMode = "FlatFace"
sketch15.AttachmentOffset = App.Placement(App.Vector(0, 0, 25), App.Rotation())
sketch15.addGeometry(Part.LineSegment(App.Vector(-8, -15, 0), App.Vector(-8, -3, 0)), False)
sketch15.addGeometry(Part.LineSegment(App.Vector(-8, -3, 0), App.Vector(8, -3, 0)), False)
sketch15.addGeometry(Part.LineSegment(App.Vector(8, -3, 0), App.Vector(8, -15, 0)), False)
sketch15.addGeometry(Part.LineSegment(App.Vector(8, -15, 0), App.Vector(-8, -15, 0)), False)
sketch15.addGeometry(Part.LineSegment(App.Vector(-8, -42, 0), App.Vector(-8, -30, 0)), False)
sketch15.addGeometry(Part.LineSegment(App.Vector(-8, -30, 0), App.Vector(8, -30, 0)), False)
sketch15.addGeometry(Part.LineSegment(App.Vector(8, -30, 0), App.Vector(8, -42, 0)), False)
sketch15.addGeometry(Part.LineSegment(App.Vector(8, -42, 0), App.Vector(-8, -42, 0)), False)
sketch15.addConstraint(Sketcher.Constraint("Coincident", 0, 2, 1, 1))
sketch15.addConstraint(Sketcher.Constraint("Coincident", 1, 2, 2, 1))
sketch15.addConstraint(Sketcher.Constraint("Coincident", 2, 2, 3, 1))
sketch15.addConstraint(Sketcher.Constraint("Coincident", 3, 2, 0, 1))
sketch15.addConstraint(Sketcher.Constraint("Coincident", 4, 2, 5, 1))
sketch15.addConstraint(Sketcher.Constraint("Coincident", 5, 2, 6, 1))
sketch15.addConstraint(Sketcher.Constraint("Coincident", 6, 2, 7, 1))
sketch15.addConstraint(Sketcher.Constraint("Coincident", 7, 2, 4, 1))
sketch15.addConstraint(Sketcher.Constraint("Vertical", 0))
sketch15.addConstraint(Sketcher.Constraint("Horizontal", 1))
sketch15.addConstraint(Sketcher.Constraint("Vertical", 2))
sketch15.addConstraint(Sketcher.Constraint("Horizontal", 3))
sketch15.addConstraint(Sketcher.Constraint("Vertical", 4))
sketch15.addConstraint(Sketcher.Constraint("Horizontal", 5))
sketch15.addConstraint(Sketcher.Constraint("Vertical", 6))
sketch15.addConstraint(Sketcher.Constraint("Horizontal", 7))
sketch15.addConstraint(Sketcher.Constraint("Vertical", 3, 2, 4, 2))
sketch15.addConstraint(Sketcher.Constraint("Vertical", 2, 2, 5, 2))
sketch15.addConstraint(Sketcher.Constraint("Equal", 2, 4))
sketch15.addConstraint(Sketcher.Constraint("DistanceX", 1, 1, 1, 2, Q("15 mm")))
sketch15.addConstraint(Sketcher.Constraint("DistanceY", 0, 1, 0, 2, Q("12 mm")))
sketch15.addConstraint(Sketcher.Constraint("DistanceY", 0, 2, -1, 1, Q("3 mm")))
sketch15.addConstraint(Sketcher.Constraint("DistanceY", 4, 2, -1, 1, Q("30 mm")))
sketch15.addConstraint(Sketcher.Constraint("DistanceX", 0, 2, -1, 1, Q("7.5 mm")))
pocket10 = body.newObject("PartDesign::Pocket", "Pocket009")
pocket10.Profile = sketch15
pocket10.Length = 9
pocket10.Reversed = True
doc.recompute()

fillet = body.newObject("PartDesign::Fillet", "Fillet")
fillet.Base = (pocket10, edges_at(pocket10, [(-60, 2.5, -80), (60, 2.5, -80)]))
fillet.Radius = 5

doc.recompute()
